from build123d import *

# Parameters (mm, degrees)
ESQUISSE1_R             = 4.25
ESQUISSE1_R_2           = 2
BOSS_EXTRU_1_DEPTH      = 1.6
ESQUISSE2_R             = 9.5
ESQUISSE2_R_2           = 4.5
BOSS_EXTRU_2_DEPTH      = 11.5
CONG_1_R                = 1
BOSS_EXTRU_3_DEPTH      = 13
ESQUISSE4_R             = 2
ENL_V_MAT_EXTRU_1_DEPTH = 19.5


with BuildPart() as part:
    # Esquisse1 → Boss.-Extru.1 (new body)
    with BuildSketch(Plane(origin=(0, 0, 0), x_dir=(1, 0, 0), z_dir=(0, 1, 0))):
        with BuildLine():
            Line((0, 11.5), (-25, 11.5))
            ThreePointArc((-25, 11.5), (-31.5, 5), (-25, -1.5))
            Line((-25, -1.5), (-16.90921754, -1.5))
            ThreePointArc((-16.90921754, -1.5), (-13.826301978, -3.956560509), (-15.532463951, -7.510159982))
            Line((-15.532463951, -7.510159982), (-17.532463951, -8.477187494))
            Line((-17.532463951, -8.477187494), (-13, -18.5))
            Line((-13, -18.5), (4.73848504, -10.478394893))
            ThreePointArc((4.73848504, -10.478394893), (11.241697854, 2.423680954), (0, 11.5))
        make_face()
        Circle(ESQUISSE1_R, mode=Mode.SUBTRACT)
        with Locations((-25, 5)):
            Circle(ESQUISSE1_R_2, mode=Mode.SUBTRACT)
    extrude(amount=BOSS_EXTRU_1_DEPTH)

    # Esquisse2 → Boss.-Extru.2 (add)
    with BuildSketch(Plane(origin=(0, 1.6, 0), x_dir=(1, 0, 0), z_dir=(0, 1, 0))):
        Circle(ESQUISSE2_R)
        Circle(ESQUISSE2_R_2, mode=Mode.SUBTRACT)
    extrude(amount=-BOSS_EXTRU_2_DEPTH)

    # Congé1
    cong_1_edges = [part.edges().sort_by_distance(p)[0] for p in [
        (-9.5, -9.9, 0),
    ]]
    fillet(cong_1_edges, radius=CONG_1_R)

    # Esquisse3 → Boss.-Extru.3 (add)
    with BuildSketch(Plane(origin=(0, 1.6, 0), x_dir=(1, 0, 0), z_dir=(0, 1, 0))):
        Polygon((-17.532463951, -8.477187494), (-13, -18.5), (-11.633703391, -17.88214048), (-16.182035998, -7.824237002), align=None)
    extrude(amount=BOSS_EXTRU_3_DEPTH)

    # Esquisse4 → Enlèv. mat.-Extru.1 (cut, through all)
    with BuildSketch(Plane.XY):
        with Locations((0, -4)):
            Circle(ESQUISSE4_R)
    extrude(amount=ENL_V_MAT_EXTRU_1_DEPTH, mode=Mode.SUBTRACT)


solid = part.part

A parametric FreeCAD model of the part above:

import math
import FreeCAD as App
import Part
import Sketcher
from FreeCAD import Vector


def edges_at(feature, points):
    """Names of the edges that pass closest to the given points."""
    edges = feature.Shape.Edges
    near = lambda p: min(range(len(edges)), key=lambda i: edges[i].distToShape(Part.Vertex(*p))[0])
    return sorted({f"Edge{near(p) + 1}" for p in points})

doc = App.newDocument("Part")
body = doc.addObject("PartDesign::Body", "Body")

# Sketch on XZ plane
sketch1 = doc.addObject("Sketcher::SketchObject", "Sketch")
body.addObject(sketch1)
sketch1.AttachmentSupport = (doc.XZ_Plane, [""])
sketch1.MapMode = "FlatFace"
sketch1.addGeometry([
    Part.LineSegment(Vector(0, -11.5, 0), Vector(-25, -11.5, 0)),  # 0
    Part.ArcOfCircle(Part.Circle(Vector(-25, -5, 0), Vector(0, 0, 1), 6.5), math.radians(90), math.radians(270)),  # 1
    Part.LineSegment(Vector(-25, 1.5, 0), Vector(-16.9, 1.5, 0)),  # 2
    Part.ArcOfCircle(Part.Circle(Vector(-16.9, 4.7, 0), Vector(0, 0, 1), 3.2), math.radians(-90), math.radians(64)),  # 3
    Part.LineSegment(Vector(-15.5, 7.5, 0), Vector(-17.5, 8.5, 0)),  # 4
    Part.LineSegment(Vector(-17.5, 8.5, 0), Vector(-13, 18.5, 0)),  # 5
    Part.LineSegment(Vector(-13, 18.5, 0), Vector(4.7, 10.5, 0)),  # 6
    Part.ArcOfCircle(Part.Circle(Vector(0, 0, 0), Vector(0, 0, 1), 11.5), math.radians(-90), math.radians(66)),  # 7
    Part.Circle(Vector(0, 0, 0), Vector(0, 0, 1), 4.2),  # 8
    Part.Circle(Vector(-25, -5, 0), Vector(0, 0, 1), 2),  # 9
], False)
sketch1.addConstraint([
    Sketcher.Constraint("Tangent", 0, 2, 1, 2),
    Sketcher.Constraint("Tangent", 1, 1, 2, 1),
    Sketcher.Constraint("Tangent", 2, 2, 3, 1),
    Sketcher.Constraint("Tangent", 3, 2, 4, 1),
    Sketcher.Constraint("Coincident", 4, 2, 5, 1),
    Sketcher.Constraint("Coincident", 5, 2, 6, 1),
    Sketcher.Constraint("Tangent", 6, 2, 7, 2),
    Sketcher.Constraint("Tangent", 7, 1, 0, 1),
    Sketcher.Constraint("Horizontal", 0),
    Sketcher.Constraint("Horizontal", 2),
    Sketcher.Constraint("Coincident", 7, 3, -1, 1),
    Sketcher.Constraint("Coincident", 8, 3, -1, 1),
    Sketcher.Constraint("Coincident", 9, 3, 1, 3),
    Sketcher.Constraint("Perpendicular", 5, 6),
    Sketcher.Constraint("Diameter", 9, 4.0),
    Sketcher.Constraint("Diameter", 8, 8.5),
    Sketcher.Constraint("Radius", 1, 6.5),
    Sketcher.Constraint("Radius", 7, 11.5),
    Sketcher.Constraint("DistanceX", 0, 2, 0, 1, 25.0),
    Sketcher.Constraint("Distance", 5, 11.0),
    Sketcher.Constraint("DistanceX", 5, 2, -1, 1, 13.0),
    Sketcher.Constraint("DistanceX", 4, 2, 3, 2, 2.0),
    Sketcher.Constraint("DistanceY", 2, 2, 5, 2, 17.0),
    Sketcher.Constraint("Radius", 3, 3.162767),
])
pad1 = doc.addObject("PartDesign::Pad", "Pad")
body.addObject(pad1)
pad1.Profile = sketch1
pad1.Length = 1.6
pad1.Reversed = True

# Sketch on XZ plane
sketch2 = doc.addObject("Sketcher::SketchObject", "Sketch001")
body.addObject(sketch2)
sketch2.AttachmentSupport = (doc.XZ_Plane, [""])
sketch2.MapMode = "FlatFace"
sketch2.AttachmentOffset = App.Placement(Vector(0, 0, -1.6), App.Rotation())
sketch2.addGeometry([
    Part.Circle(Vector(0, 0, 0), Vector(0, 0, 1), 9.5),
    Part.Circle(Vector(0, 0, 0), Vector(0, 0, 1), 4.5),
], False)
sketch2.addConstraint([
    Sketcher.Constraint("Coincident", 0, 3, -1, 1),
    Sketcher.Constraint("Coincident", 1, 3, -1, 1),
    Sketcher.Constraint("Diameter", 0, 19.0),
    Sketcher.Constraint("Diameter", 1, 9.0),
])
pad2 = doc.addObject("PartDesign::Pad", "Pad001")
body.addObject(pad2)
pad2.Profile = sketch2
pad2.Length = 11.5
doc.recompute()

fillet = doc.addObject("PartDesign::Fillet", "Fillet")
body.addObject(fillet)
fillet.Base = (pad2, edges_at(pad2, [(-9.5, -9.9, 0)]))
fillet.Radius = 1

# Sketch on XZ plane
sketch3 = doc.addObject("Sketcher::SketchObject", "Sketch002")
body.addObject(sketch3)
sketch3.AttachmentSupport = (doc.XZ_Plane, [""])
sketch3.MapMode = "FlatFace"
sketch3.AttachmentOffset = App.Placement(Vector(0, 0, -1.6), App.Rotation())
sketch3.addGeometry([
    Part.LineSegment(Vector(-17.5, 8.5, 0), Vector(-13, 18.5, 0)),
    Part.LineSegment(Vector(-13, 18.5, 0), Vector(-11.6, 17.9, 0)),
    Part.LineSegment(Vector(-11.6, 17.9, 0), Vector(-16.2, 7.8, 0)),
    Part.LineSegment(Vector(-16.2, 7.8, 0), Vector(-17.5, 8.5, 0)),
], False)
sketch3.addConstraint([
    Sketcher.Constraint("Coincident", 0, 2, 1, 1),
    Sketcher.Constraint("Coincident", 1, 2, 2, 1),
    Sketcher.Constraint("Coincident", 2, 2, 3, 1),
    Sketcher.Constraint("Coincident", 3, 2, 0, 1),
    Sketcher.Constraint("Perpendicular", 0, 1),
    Sketcher.Constraint("Perpendicular", 1, 2),
    Sketcher.Constraint("Distance", 0, 11.0),
    Sketcher.Constraint("DistanceX", 0, 2, -1, 1, 13.0),
    Sketcher.Constraint("Distance", 3, 1.5),
    Sketcher.Constraint("DistanceY", -1, 1, 0, 2, 18.5),
    Sketcher.Constraint("DistanceY", -1, 1, 1, 2, 17.88214),
    Sketcher.Constraint("DistanceY", 2, 2, 3, 2, 0.65295),
])
pad3 = doc.addObject("PartDesign::Pad", "Pad002")
body.addObject(pad3)
pad3.Profile = sketch3
pad3.Length = 13
pad3.Reversed = True

# Sketch on XY plane
sketch4 = doc.addObject("Sketcher::SketchObject", "Sketch003")
body.addObject(sketch4)
sketch4.AttachmentSupport = (doc.XY_Plane, [""])
sketch4.MapMode = "FlatFace"
sketch4.addGeometry(Part.Circle(Vector(0, -4, 0), Vector(0, 0, 1), 2), False)
sketch4.addConstraint([
    Sketcher.Constraint("PointOnObject", 0, 3, -2),
    Sketcher.Constraint("Diameter", 0, 4.0),
    Sketcher.Constraint("DistanceY", 0, 3, -1, 1, 4.0),
])
pocket1 = doc.addObject("PartDesign::Pocket", "Pocket")
body.addObject(pocket1)
pocket1.Profile = sketch4
pocket1.Type = "ThroughAll"
pocket1.Reversed = True

doc.recompute()
